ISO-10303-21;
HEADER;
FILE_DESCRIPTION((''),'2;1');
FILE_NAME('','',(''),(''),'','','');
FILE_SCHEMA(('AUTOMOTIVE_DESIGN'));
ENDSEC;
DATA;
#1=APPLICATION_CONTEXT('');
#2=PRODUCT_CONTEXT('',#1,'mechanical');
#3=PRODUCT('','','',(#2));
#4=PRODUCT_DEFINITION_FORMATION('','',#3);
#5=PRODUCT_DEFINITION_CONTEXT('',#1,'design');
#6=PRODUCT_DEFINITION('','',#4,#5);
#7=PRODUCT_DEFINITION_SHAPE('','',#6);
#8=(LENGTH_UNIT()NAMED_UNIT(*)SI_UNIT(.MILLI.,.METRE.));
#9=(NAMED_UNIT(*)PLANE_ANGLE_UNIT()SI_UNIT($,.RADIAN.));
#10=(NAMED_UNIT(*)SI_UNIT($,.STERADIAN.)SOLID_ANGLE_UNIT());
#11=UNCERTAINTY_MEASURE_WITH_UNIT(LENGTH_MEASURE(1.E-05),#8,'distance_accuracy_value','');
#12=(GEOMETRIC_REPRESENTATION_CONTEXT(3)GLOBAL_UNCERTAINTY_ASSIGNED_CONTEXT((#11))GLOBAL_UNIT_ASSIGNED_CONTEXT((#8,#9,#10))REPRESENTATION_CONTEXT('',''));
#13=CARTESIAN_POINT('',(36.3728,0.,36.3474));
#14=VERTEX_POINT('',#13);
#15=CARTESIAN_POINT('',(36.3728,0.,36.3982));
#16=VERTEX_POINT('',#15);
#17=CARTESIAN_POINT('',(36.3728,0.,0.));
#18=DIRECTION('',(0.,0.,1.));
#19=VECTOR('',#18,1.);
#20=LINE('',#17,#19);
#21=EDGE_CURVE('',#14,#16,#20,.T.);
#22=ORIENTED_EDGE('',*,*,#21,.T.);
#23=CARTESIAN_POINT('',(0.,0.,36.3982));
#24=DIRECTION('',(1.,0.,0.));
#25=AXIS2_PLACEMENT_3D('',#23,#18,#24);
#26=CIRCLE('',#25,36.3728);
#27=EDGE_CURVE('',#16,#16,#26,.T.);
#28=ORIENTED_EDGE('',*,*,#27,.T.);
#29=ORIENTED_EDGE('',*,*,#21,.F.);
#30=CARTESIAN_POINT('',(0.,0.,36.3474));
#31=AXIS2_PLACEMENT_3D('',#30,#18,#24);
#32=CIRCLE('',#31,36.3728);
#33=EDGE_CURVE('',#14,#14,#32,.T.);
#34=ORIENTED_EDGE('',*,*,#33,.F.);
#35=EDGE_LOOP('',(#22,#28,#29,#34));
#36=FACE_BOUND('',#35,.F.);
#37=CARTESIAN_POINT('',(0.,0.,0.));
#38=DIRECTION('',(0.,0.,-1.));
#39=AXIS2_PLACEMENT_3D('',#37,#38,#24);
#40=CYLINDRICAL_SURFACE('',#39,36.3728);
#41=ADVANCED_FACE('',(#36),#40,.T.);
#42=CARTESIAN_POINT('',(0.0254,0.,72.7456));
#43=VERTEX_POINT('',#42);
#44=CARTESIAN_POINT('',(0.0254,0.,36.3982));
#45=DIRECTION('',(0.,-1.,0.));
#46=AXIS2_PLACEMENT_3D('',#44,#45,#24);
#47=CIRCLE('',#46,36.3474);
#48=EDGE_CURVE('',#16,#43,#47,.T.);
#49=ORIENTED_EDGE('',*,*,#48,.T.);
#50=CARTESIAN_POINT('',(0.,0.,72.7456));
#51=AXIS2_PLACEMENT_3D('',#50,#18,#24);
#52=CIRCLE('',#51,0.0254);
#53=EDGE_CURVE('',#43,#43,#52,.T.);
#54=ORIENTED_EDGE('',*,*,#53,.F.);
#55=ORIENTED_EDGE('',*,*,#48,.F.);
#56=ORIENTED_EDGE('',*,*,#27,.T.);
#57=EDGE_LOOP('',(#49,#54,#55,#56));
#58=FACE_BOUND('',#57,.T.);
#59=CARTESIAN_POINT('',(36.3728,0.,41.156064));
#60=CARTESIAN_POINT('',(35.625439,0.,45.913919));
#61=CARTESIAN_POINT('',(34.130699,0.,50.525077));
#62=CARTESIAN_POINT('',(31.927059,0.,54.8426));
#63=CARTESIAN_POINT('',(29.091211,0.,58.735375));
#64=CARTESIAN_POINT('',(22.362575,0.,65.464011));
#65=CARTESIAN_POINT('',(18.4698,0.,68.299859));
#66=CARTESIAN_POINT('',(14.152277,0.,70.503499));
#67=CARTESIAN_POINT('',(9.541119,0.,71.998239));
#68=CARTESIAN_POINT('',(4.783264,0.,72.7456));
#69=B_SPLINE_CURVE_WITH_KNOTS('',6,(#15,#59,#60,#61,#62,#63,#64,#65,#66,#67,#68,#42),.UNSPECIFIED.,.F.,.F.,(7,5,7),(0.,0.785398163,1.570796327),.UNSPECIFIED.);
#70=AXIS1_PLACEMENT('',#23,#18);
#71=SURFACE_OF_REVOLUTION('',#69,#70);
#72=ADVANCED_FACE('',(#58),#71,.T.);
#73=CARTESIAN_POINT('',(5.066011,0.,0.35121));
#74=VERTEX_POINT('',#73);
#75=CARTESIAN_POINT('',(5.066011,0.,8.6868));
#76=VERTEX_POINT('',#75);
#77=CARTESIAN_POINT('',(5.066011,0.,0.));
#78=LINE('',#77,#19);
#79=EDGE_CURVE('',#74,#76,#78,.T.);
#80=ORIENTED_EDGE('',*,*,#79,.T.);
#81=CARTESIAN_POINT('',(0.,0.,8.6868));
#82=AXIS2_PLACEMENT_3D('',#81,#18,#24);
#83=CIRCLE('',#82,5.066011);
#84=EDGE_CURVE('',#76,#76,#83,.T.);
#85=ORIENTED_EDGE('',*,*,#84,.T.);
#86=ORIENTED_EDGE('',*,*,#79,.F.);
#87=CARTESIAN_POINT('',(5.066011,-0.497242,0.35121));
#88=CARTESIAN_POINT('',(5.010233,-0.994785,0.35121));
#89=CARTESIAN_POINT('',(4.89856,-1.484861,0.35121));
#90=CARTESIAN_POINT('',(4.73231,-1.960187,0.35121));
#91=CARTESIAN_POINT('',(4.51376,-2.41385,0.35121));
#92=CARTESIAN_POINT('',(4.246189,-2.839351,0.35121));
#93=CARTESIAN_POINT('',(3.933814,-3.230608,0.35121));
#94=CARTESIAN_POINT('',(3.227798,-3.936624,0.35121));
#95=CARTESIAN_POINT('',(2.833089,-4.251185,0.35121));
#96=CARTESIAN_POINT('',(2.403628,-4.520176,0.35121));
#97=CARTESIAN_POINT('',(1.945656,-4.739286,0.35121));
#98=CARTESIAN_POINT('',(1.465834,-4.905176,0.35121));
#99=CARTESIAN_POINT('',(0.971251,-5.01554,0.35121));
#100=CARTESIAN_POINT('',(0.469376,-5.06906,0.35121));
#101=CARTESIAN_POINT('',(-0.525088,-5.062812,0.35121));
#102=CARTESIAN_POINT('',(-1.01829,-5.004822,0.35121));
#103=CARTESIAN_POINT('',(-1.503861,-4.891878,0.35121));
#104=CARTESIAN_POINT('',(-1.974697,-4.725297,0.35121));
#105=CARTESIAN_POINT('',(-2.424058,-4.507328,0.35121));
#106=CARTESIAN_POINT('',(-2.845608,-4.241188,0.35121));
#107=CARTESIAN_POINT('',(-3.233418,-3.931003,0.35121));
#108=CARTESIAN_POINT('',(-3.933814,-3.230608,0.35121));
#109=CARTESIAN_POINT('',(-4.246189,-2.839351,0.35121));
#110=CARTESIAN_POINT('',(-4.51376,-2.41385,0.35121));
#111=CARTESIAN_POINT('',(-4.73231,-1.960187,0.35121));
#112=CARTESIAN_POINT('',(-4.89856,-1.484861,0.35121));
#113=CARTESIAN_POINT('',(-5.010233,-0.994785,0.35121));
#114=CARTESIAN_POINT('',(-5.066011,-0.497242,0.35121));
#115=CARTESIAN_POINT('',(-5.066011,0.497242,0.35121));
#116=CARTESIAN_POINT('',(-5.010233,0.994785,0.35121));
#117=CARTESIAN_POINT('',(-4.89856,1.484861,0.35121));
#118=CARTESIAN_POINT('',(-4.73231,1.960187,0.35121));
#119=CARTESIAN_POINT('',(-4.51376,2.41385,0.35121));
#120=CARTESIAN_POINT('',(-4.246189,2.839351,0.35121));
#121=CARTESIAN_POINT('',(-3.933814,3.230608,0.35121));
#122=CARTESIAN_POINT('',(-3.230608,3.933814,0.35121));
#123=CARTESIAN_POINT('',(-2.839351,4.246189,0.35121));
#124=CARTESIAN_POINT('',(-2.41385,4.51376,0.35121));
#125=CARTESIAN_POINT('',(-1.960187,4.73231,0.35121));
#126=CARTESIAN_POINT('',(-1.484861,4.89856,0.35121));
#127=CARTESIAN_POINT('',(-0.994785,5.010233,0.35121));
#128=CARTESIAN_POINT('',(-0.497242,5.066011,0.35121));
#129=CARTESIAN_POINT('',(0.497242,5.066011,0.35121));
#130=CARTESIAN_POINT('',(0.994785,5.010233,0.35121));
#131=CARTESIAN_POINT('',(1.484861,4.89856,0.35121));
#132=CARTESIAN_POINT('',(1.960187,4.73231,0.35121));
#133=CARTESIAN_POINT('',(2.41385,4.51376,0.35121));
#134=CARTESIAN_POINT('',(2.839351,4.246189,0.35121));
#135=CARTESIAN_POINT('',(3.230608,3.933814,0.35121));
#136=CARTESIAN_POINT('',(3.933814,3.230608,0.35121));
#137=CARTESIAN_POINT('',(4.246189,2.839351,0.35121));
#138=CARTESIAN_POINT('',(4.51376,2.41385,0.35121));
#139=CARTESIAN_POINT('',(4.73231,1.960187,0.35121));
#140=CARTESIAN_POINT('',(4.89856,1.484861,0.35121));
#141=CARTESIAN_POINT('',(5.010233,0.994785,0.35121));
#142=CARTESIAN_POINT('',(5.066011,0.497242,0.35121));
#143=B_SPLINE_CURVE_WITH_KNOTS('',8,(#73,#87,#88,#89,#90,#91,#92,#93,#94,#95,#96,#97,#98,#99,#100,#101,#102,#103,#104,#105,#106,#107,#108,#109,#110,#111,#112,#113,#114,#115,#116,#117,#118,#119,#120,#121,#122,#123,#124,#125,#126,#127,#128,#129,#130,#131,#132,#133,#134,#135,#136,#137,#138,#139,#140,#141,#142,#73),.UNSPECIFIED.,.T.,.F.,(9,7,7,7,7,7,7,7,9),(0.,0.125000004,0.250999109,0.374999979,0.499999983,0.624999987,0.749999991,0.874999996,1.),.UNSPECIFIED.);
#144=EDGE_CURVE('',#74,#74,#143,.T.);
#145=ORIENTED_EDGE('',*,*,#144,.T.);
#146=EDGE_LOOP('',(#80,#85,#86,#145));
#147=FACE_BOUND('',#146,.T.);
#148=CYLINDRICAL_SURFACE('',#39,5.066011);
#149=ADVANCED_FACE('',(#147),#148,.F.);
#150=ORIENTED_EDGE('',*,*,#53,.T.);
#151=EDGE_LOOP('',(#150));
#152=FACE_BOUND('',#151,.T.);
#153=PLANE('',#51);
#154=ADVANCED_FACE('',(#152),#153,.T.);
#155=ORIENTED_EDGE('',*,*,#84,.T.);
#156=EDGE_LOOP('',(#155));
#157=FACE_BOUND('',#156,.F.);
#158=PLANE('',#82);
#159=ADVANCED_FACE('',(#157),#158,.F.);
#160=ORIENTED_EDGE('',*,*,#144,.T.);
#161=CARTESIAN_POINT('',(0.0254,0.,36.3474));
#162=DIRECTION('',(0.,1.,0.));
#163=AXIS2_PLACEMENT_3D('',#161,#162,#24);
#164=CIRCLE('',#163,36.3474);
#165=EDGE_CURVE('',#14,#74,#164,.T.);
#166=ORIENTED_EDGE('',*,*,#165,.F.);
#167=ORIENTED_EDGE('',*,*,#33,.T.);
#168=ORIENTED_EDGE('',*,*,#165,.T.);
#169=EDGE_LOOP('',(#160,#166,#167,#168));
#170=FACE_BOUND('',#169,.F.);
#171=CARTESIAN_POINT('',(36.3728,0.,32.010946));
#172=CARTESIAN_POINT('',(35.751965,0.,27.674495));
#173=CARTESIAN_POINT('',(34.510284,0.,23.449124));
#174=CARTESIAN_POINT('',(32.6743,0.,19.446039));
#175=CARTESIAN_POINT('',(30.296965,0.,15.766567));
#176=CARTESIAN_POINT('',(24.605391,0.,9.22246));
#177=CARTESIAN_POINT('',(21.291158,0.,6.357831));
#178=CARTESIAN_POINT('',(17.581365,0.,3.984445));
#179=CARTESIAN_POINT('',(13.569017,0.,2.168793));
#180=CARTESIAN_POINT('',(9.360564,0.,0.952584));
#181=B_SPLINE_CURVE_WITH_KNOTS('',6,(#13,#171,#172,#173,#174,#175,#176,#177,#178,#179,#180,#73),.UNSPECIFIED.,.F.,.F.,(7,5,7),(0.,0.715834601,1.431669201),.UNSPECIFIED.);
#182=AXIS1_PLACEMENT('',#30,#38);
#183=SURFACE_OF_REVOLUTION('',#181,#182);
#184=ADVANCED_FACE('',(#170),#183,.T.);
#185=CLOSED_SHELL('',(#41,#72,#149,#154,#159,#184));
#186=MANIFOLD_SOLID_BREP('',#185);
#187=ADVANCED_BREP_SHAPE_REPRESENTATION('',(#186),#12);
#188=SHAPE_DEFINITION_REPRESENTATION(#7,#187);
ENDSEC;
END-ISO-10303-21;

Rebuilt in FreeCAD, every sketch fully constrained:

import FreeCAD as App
import Part
import Sketcher
from FreeCAD import Vector
Q = App.Units.Quantity


def edges_at(feature, points):
    """Names of the edges that pass closest to the given points."""
    edges = feature.Shape.Edges
    near = lambda p: min(range(len(edges)), key=lambda i: edges[i].distToShape(Part.Vertex(*p))[0])
    return sorted({f"Edge{near(p) + 1}" for p in points})

doc = App.newDocument("Part")
body = doc.addObject("PartDesign::Body", "Body")

# Sketch on XY plane
sketch1 = doc.addObject("Sketcher::SketchObject", "Sketch")
body.addObject(sketch1)
sketch1.AttachmentSupport = (doc.XY_Plane, [""])
sketch1.MapMode = "FlatFace"
sketch1.addGeometry(Part.Circle(Vector(0, 0, 0), Vector(0, 0, 1), 36), False)
sketch1.addConstraint([
    Sketcher.Constraint("Coincident", 0, 3, -1, 1),
    Sketcher.Constraint("Diameter", 0, Q("2.864 in")),
])
pad1 = doc.addObject("PartDesign::Pad", "Pad")
body.addObject(pad1)
pad1.Profile = sketch1
pad1.Length = Q("2.864 in")
doc.recompute()

fillet = doc.addObject("PartDesign::Fillet", "Fillet")
body.addObject(fillet)
fillet.Base = (pad1, edges_at(pad1, [(-36.373, 0, 72.746)]))
fillet.Radius = Q("1.431 in")
doc.recompute()

fillet2 = doc.addObject("PartDesign::Fillet", "Fillet001")
body.addObject(fillet2)
fillet2.Base = (fillet, edges_at(fillet, [(-36.373, 0, 0), (-36.373, 0, 36.398)]))
fillet2.Radius = Q("1.431 in")

# Sketch on XY plane
sketch2 = doc.addObject("Sketcher::SketchObject", "Sketch001")
body.addObject(sketch2)
sketch2.AttachmentSupport = (doc.XY_Plane, [""])
sketch2.MapMode = "FlatFace"
sketch2.addGeometry(Part.Circle(Vector(0, 0, 0), Vector(0, 0, 1), 5), False)
sketch2.addConstraint([
    Sketcher.Constraint("Coincident", 0, 3, -1, 1),
    Sketcher.Constraint("Diameter", 0, 10.132022),
])
pocket1 = doc.addObject("PartDesign::Pocket", "Pocket")
body.addObject(pocket1)
pocket1.Profile = sketch2
pocket1.Length = Q("0.342 in")
pocket1.Reversed = True

doc.recompute()
